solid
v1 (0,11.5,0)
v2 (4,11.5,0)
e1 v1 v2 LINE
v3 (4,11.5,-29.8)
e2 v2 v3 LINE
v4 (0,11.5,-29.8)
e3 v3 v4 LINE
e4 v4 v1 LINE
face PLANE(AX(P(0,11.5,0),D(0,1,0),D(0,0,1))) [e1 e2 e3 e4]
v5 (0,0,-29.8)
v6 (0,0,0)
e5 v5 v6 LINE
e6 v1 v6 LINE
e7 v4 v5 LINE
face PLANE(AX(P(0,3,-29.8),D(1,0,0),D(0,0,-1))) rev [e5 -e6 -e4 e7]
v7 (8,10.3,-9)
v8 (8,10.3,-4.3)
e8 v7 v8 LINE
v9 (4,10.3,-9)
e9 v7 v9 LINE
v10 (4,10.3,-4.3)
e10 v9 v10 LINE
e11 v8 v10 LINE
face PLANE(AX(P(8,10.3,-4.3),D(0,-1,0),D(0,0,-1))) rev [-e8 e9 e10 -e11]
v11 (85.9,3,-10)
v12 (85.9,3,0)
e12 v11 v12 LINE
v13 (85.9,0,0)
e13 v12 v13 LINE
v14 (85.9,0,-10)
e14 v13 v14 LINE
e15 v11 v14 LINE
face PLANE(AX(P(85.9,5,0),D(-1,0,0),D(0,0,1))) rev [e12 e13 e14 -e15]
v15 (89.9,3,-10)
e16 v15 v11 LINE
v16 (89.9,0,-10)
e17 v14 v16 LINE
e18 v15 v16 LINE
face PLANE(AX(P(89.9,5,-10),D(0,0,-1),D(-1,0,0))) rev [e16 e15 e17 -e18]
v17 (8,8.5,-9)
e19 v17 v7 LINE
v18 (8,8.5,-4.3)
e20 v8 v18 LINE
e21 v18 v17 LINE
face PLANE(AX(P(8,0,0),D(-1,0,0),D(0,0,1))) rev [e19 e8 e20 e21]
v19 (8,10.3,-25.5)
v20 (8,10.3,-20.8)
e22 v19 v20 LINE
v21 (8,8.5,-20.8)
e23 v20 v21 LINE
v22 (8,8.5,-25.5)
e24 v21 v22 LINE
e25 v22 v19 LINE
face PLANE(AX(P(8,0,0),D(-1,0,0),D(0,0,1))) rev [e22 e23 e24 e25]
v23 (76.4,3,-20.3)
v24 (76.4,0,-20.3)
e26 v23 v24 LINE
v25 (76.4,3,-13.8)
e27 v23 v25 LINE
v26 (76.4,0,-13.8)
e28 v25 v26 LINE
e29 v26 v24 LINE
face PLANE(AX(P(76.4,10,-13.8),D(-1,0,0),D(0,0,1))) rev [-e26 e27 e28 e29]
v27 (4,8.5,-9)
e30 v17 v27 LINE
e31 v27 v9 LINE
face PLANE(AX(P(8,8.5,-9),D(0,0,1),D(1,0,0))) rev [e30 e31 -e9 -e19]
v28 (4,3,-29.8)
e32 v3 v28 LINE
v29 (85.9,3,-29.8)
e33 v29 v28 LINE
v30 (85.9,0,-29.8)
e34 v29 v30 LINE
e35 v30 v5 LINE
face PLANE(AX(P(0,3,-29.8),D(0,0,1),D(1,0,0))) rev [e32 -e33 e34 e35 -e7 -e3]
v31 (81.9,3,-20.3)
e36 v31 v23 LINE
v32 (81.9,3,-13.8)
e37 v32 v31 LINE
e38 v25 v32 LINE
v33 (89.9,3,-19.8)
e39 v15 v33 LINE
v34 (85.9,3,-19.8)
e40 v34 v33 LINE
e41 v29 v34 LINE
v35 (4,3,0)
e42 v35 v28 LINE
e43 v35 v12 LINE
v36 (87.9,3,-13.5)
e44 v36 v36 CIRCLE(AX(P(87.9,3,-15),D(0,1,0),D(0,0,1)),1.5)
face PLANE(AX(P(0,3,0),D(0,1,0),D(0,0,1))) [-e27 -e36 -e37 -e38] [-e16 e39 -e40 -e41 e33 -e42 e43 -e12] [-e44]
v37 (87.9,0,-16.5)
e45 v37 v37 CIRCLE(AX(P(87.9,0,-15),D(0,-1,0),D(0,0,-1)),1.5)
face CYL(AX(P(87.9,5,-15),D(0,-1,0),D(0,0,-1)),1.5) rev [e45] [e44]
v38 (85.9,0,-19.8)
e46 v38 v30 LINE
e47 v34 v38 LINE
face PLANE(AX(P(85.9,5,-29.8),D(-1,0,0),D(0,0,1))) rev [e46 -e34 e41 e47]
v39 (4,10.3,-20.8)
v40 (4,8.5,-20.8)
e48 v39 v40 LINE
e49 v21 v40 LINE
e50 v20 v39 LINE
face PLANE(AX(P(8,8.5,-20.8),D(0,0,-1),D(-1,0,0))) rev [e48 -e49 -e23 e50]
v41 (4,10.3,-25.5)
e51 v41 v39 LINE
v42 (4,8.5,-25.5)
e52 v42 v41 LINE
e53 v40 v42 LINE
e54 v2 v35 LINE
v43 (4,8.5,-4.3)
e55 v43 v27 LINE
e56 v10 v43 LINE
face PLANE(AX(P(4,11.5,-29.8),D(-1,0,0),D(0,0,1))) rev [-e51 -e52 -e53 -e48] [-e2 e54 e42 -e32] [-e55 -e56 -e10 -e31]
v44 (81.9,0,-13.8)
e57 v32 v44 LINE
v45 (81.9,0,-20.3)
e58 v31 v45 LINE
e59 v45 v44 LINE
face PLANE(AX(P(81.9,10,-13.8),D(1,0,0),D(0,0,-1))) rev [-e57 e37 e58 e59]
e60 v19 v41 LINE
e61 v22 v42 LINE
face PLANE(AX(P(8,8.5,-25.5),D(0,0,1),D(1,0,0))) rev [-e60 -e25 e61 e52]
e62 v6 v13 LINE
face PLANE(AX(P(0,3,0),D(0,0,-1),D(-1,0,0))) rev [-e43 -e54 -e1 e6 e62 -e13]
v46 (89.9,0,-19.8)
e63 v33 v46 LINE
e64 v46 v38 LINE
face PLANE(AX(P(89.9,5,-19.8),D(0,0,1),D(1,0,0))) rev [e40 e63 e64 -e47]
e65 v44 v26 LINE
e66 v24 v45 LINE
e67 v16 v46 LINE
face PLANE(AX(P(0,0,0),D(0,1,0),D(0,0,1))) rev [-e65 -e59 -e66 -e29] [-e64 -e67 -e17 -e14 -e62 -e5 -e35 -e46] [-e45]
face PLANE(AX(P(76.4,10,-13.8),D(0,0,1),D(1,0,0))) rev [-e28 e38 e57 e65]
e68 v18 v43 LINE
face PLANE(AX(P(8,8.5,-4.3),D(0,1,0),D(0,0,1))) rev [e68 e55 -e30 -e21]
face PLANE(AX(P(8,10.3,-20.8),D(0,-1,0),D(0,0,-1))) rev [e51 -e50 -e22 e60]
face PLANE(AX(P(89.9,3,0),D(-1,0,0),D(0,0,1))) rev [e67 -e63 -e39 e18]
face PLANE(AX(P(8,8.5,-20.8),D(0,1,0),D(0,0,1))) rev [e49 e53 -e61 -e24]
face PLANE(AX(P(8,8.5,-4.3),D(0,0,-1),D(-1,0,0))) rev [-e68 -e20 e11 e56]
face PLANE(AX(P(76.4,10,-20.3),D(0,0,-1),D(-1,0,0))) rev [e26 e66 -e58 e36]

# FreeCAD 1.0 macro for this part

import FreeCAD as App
import Part
import Sketcher
from FreeCAD import Vector

doc = App.newDocument("Part")
body = doc.addObject("PartDesign::Body", "Body")

# Sketch on XZ plane
sketch1 = doc.addObject("Sketcher::SketchObject", "Sketch")
body.addObject(sketch1)
sketch1.AttachmentSupport = (doc.XZ_Plane, [""])
sketch1.MapMode = "FlatFace"
sketch1.addGeometry([
    Part.LineSegment(Vector(0, -30, 0), Vector(0, 0, 0)),
    Part.LineSegment(Vector(0, 0, 0), Vector(90, 0, 0)),
    Part.LineSegment(Vector(90, 0, 0), Vector(90, -30, 0)),
    Part.LineSegment(Vector(90, -30, 0), Vector(0, -30, 0)),
], False)
sketch1.addConstraint([
    Sketcher.Constraint("Coincident", 0, 2, 1, 1),
    Sketcher.Constraint("Coincident", 1, 2, 2, 1),
    Sketcher.Constraint("Coincident", 2, 2, 3, 1),
    Sketcher.Constraint("Coincident", 3, 2, 0, 1),
    Sketcher.Constraint("Vertical", 0),
    Sketcher.Constraint("Horizontal", 1),
    Sketcher.Constraint("Vertical", 2),
    Sketcher.Constraint("Horizontal", 3),
    Sketcher.Constraint("Coincident", 0, 2, -1, 1),
    Sketcher.Constraint("DistanceX", 1, 1, 1, 2, 89.9),
    Sketcher.Constraint("DistanceY", 0, 1, 0, 2, 29.8),
])
pad1 = doc.addObject("PartDesign::Pad", "Pad")
body.addObject(pad1)
pad1.Profile = sketch1
pad1.Length = 3
pad1.Reversed = True

# Sketch on XZ plane
sketch2 = doc.addObject("Sketcher::SketchObject", "Sketch001")
body.addObject(sketch2)
sketch2.AttachmentSupport = (doc.XZ_Plane, [""])
sketch2.MapMode = "FlatFace"
sketch2.addGeometry([
    Part.Circle(Vector(87.9, -15, 0), Vector(0, 0, 1), 1.5),  # 0
    Part.LineSegment(Vector(89.9, -10, 0), Vector(89.9, 0, 0)),  # 1
    Part.LineSegment(Vector(89.9, 0, 0), Vector(85.9, 0, 0)),  # 2
    Part.LineSegment(Vector(85.9, 0, 0), Vector(85.9, -10, 0)),  # 3
    Part.LineSegment(Vector(85.9, -10, 0), Vector(89.9, -10, 0)),  # 4
    Part.LineSegment(Vector(89.9, -29.8, 0), Vector(89.9, -19.8, 0)),  # 5
    Part.LineSegment(Vector(89.9, -19.8, 0), Vector(85.9, -19.8, 0)),  # 6
    Part.LineSegment(Vector(85.9, -19.8, 0), Vector(85.9, -29.8, 0)),  # 7
    Part.LineSegment(Vector(85.9, -29.8, 0), Vector(89.9, -29.8, 0)),  # 8
], False)
sketch2.addConstraint([
    Sketcher.Constraint("Coincident", 1, 2, 2, 1),
    Sketcher.Constraint("Coincident", 2, 2, 3, 1),
    Sketcher.Constraint("Coincident", 3, 2, 4, 1),
    Sketcher.Constraint("Coincident", 4, 2, 1, 1),
    Sketcher.Constraint("Coincident", 5, 2, 6, 1),
    Sketcher.Constraint("Coincident", 6, 2, 7, 1),
    Sketcher.Constraint("Coincident", 7, 2, 8, 1),
    Sketcher.Constraint("Coincident", 8, 2, 5, 1),
    Sketcher.Constraint("Vertical", 1),
    Sketcher.Constraint("Horizontal", 2),
    Sketcher.Constraint("Vertical", 3),
    Sketcher.Constraint("Horizontal", 4),
    Sketcher.Constraint("Vertical", 5),
    Sketcher.Constraint("Horizontal", 6),
    Sketcher.Constraint("Vertical", 7),
    Sketcher.Constraint("Horizontal", 8),
    Sketcher.Constraint("PointOnObject", 1, 2, -1),
    Sketcher.Constraint("Vertical", 4, 2, 5, 2),
    Sketcher.Constraint("Vertical", 3, 2, 6, 2),
    Sketcher.Constraint("Equal", 3, 5),
    Sketcher.Constraint("Diameter", 0, 3.0),
    Sketcher.Constraint("DistanceX", 2, 2, 2, 1, 4.0),
    Sketcher.Constraint("DistanceY", 1, 1, 1, 2, 10.0),
    Sketcher.Constraint("DistanceY", 0, 3, -1, 1, 15.0),
    Sketcher.Constraint("DistanceX", 0, 3, 1, 2, 2.0),
    Sketcher.Constraint("DistanceX", -1, 1, 0, 3, 87.9),
    Sketcher.Constraint("DistanceY", 5, 2, -1, 1, 19.8),
])
pocket1 = doc.addObject("PartDesign::Pocket", "Pocket")
body.addObject(pocket1)
pocket1.Profile = sketch2
pocket1.Length = 5

# Sketch on XZ plane
sketch3 = doc.addObject("Sketcher::SketchObject", "Sketch002")
body.addObject(sketch3)
sketch3.AttachmentSupport = (doc.XZ_Plane, [""])
sketch3.MapMode = "FlatFace"
sketch3.addGeometry([
    Part.LineSegment(Vector(76, -14, 0), Vector(76, -20, 0)),
    Part.LineSegment(Vector(76, -20, 0), Vector(82, -20, 0)),
    Part.LineSegment(Vector(82, -20, 0), Vector(82, -14, 0)),
    Part.LineSegment(Vector(82, -14, 0), Vector(76, -14, 0)),
], False)
sketch3.addConstraint([
    Sketcher.Constraint("Coincident", 0, 2, 1, 1),
    Sketcher.Constraint("Coincident", 1, 2, 2, 1),
    Sketcher.Constraint("Coincident", 2, 2, 3, 1),
    Sketcher.Constraint("Coincident", 3, 2, 0, 1),
    Sketcher.Constraint("Vertical", 0),
    Sketcher.Constraint("Horizontal", 1),
    Sketcher.Constraint("Vertical", 2),
    Sketcher.Constraint("Horizontal", 3),
    Sketcher.Constraint("DistanceX", 1, 1, 1, 2, 5.5),
    Sketcher.Constraint("DistanceY", 0, 2, 0, 1, 6.5),
    Sketcher.Constraint("DistanceX", -1, 1, 0, 2, 76.4),
    Sketcher.Constraint("DistanceY", 0, 2, -1, 1, 20.3),
])
pocket2 = doc.addObject("PartDesign::Pocket", "Pocket001")
body.addObject(pocket2)
pocket2.Profile = sketch3
pocket2.Length = 10

# Sketch on XZ plane
sketch4 = doc.addObject("Sketcher::SketchObject", "Sketch003")
body.addObject(sketch4)
sketch4.AttachmentSupport = (doc.XZ_Plane, [""])
sketch4.MapMode = "FlatFace"
sketch4.AttachmentOffset = App.Placement(Vector(0, 0, -3), App.Rotation())
sketch4.addGeometry([
    Part.LineSegment(Vector(0, -29.8, 0), Vector(0, 0, 0)),
    Part.LineSegment(Vector(0, 0, 0), Vector(4, 0, 0)),
    Part.LineSegment(Vector(4, 0, 0), Vector(4, -29.8, 0)),
    Part.LineSegment(Vector(4, -29.8, 0), Vector(0, -29.8, 0)),
], False)
sketch4.addConstraint([
    Sketcher.Constraint("Coincident", 0, 2, 1, 1),
    Sketcher.Constraint("Coincident", 1, 2, 2, 1),
    Sketcher.Constraint("Coincident", 2, 2, 3, 1),
    Sketcher.Constraint("Coincident", 3, 2, 0, 1),
    Sketcher.Constraint("Vertical", 0),
    Sketcher.Constraint("Horizontal", 1),
    Sketcher.Constraint("Vertical", 2),
    Sketcher.Constraint("Horizontal", 3),
    Sketcher.Constraint("Coincident", 0, 2, -1, 1),
    Sketcher.Constraint("DistanceX", 1, 1, 1, 2, 4.0),
    Sketcher.Constraint("DistanceY", 0, 1, 0, 2, 29.8),
])
pad2 = doc.addObject("PartDesign::Pad", "Pad001")
body.addObject(pad2)
pad2.Profile = sketch4
pad2.Length = 8.5
pad2.Reversed = True

# Sketch on YZ plane
sketch5 = doc.addObject("Sketcher::SketchObject", "Sketch004")
body.addObject(sketch5)
sketch5.AttachmentSupport = (doc.YZ_Plane, [""])
sketch5.MapMode = "FlatFace"
sketch5.AttachmentOffset = App.Placement(Vector(0, 0, 4), App.Rotation())
sketch5.addGeometry([
    Part.LineSegment(Vector(10.3, -4.3, 0), Vector(8.5, -4.3, 0)),  # 0
    Part.LineSegment(Vector(8.5, -4.3, 0), Vector(8.5, -9, 0)),  # 1
    Part.LineSegment(Vector(8.5, -9, 0), Vector(10.3, -9, 0)),  # 2
    Part.LineSegment(Vector(10.3, -9, 0), Vector(10.3, -4.3, 0)),  # 3
    Part.LineSegment(Vector(10.3, -20.8, 0), Vector(8.5, -20.8, 0)),  # 4
    Part.LineSegment(Vector(8.5, -20.8, 0), Vector(8.5, -25.5, 0)),  # 5
    Part.LineSegment(Vector(8.5, -25.5, 0), Vector(10.3, -25.5, 0)),  # 6
    Part.LineSegment(Vector(10.3, -25.5, 0), Vector(10.3, -20.8, 0)),  # 7
], False)
sketch5.addConstraint([
    Sketcher.Constraint("Coincident", 0, 2, 1, 1),
    Sketcher.Constraint("Coincident", 1, 2, 2, 1),
    Sketcher.Constraint("Coincident", 2, 2, 3, 1),
    Sketcher.Constraint("Coincident", 3, 2, 0, 1),
    Sketcher.Constraint("Coincident", 4, 2, 5, 1),
    Sketcher.Constraint("Coincident", 5, 2, 6, 1),
    Sketcher.Constraint("Coincident", 6, 2, 7, 1),
    Sketcher.Constraint("Coincident", 7, 2, 4, 1),
    Sketcher.Constraint("Horizontal", 0),
    Sketcher.Constraint("Vertical", 1),
    Sketcher.Constraint("Horizontal", 2),
    Sketcher.Constraint("Vertical", 3),
    Sketcher.Constraint("Horizontal", 4),
    Sketcher.Constraint("Vertical", 5),
    Sketcher.Constraint("Horizontal", 6),
    Sketcher.Constraint("Vertical", 7),
    Sketcher.Constraint("Vertical", 1, 2, 4, 2),
    Sketcher.Constraint("Vertical", 3, 2, 6, 2),
    Sketcher.Constraint("Equal", 3, 5),
    Sketcher.Constraint("DistanceX", 0, 2, 0, 1, 1.8),
    Sketcher.Constraint("DistanceY", 1, 2, 1, 1, 4.7),
    Sketcher.Constraint("DistanceY", 1, 2, -1, 1, 9.0),
    Sketcher.Constraint("DistanceX", -1, 1, 0, 2, 8.5),
    Sketcher.Constraint("DistanceY", 4, 2, -1, 1, 20.8),
])
pad3 = doc.addObject("PartDesign::Pad", "Pad002")
body.addObject(pad3)
pad3.Profile = sketch5
pad3.Length = 4

doc.recompute()
